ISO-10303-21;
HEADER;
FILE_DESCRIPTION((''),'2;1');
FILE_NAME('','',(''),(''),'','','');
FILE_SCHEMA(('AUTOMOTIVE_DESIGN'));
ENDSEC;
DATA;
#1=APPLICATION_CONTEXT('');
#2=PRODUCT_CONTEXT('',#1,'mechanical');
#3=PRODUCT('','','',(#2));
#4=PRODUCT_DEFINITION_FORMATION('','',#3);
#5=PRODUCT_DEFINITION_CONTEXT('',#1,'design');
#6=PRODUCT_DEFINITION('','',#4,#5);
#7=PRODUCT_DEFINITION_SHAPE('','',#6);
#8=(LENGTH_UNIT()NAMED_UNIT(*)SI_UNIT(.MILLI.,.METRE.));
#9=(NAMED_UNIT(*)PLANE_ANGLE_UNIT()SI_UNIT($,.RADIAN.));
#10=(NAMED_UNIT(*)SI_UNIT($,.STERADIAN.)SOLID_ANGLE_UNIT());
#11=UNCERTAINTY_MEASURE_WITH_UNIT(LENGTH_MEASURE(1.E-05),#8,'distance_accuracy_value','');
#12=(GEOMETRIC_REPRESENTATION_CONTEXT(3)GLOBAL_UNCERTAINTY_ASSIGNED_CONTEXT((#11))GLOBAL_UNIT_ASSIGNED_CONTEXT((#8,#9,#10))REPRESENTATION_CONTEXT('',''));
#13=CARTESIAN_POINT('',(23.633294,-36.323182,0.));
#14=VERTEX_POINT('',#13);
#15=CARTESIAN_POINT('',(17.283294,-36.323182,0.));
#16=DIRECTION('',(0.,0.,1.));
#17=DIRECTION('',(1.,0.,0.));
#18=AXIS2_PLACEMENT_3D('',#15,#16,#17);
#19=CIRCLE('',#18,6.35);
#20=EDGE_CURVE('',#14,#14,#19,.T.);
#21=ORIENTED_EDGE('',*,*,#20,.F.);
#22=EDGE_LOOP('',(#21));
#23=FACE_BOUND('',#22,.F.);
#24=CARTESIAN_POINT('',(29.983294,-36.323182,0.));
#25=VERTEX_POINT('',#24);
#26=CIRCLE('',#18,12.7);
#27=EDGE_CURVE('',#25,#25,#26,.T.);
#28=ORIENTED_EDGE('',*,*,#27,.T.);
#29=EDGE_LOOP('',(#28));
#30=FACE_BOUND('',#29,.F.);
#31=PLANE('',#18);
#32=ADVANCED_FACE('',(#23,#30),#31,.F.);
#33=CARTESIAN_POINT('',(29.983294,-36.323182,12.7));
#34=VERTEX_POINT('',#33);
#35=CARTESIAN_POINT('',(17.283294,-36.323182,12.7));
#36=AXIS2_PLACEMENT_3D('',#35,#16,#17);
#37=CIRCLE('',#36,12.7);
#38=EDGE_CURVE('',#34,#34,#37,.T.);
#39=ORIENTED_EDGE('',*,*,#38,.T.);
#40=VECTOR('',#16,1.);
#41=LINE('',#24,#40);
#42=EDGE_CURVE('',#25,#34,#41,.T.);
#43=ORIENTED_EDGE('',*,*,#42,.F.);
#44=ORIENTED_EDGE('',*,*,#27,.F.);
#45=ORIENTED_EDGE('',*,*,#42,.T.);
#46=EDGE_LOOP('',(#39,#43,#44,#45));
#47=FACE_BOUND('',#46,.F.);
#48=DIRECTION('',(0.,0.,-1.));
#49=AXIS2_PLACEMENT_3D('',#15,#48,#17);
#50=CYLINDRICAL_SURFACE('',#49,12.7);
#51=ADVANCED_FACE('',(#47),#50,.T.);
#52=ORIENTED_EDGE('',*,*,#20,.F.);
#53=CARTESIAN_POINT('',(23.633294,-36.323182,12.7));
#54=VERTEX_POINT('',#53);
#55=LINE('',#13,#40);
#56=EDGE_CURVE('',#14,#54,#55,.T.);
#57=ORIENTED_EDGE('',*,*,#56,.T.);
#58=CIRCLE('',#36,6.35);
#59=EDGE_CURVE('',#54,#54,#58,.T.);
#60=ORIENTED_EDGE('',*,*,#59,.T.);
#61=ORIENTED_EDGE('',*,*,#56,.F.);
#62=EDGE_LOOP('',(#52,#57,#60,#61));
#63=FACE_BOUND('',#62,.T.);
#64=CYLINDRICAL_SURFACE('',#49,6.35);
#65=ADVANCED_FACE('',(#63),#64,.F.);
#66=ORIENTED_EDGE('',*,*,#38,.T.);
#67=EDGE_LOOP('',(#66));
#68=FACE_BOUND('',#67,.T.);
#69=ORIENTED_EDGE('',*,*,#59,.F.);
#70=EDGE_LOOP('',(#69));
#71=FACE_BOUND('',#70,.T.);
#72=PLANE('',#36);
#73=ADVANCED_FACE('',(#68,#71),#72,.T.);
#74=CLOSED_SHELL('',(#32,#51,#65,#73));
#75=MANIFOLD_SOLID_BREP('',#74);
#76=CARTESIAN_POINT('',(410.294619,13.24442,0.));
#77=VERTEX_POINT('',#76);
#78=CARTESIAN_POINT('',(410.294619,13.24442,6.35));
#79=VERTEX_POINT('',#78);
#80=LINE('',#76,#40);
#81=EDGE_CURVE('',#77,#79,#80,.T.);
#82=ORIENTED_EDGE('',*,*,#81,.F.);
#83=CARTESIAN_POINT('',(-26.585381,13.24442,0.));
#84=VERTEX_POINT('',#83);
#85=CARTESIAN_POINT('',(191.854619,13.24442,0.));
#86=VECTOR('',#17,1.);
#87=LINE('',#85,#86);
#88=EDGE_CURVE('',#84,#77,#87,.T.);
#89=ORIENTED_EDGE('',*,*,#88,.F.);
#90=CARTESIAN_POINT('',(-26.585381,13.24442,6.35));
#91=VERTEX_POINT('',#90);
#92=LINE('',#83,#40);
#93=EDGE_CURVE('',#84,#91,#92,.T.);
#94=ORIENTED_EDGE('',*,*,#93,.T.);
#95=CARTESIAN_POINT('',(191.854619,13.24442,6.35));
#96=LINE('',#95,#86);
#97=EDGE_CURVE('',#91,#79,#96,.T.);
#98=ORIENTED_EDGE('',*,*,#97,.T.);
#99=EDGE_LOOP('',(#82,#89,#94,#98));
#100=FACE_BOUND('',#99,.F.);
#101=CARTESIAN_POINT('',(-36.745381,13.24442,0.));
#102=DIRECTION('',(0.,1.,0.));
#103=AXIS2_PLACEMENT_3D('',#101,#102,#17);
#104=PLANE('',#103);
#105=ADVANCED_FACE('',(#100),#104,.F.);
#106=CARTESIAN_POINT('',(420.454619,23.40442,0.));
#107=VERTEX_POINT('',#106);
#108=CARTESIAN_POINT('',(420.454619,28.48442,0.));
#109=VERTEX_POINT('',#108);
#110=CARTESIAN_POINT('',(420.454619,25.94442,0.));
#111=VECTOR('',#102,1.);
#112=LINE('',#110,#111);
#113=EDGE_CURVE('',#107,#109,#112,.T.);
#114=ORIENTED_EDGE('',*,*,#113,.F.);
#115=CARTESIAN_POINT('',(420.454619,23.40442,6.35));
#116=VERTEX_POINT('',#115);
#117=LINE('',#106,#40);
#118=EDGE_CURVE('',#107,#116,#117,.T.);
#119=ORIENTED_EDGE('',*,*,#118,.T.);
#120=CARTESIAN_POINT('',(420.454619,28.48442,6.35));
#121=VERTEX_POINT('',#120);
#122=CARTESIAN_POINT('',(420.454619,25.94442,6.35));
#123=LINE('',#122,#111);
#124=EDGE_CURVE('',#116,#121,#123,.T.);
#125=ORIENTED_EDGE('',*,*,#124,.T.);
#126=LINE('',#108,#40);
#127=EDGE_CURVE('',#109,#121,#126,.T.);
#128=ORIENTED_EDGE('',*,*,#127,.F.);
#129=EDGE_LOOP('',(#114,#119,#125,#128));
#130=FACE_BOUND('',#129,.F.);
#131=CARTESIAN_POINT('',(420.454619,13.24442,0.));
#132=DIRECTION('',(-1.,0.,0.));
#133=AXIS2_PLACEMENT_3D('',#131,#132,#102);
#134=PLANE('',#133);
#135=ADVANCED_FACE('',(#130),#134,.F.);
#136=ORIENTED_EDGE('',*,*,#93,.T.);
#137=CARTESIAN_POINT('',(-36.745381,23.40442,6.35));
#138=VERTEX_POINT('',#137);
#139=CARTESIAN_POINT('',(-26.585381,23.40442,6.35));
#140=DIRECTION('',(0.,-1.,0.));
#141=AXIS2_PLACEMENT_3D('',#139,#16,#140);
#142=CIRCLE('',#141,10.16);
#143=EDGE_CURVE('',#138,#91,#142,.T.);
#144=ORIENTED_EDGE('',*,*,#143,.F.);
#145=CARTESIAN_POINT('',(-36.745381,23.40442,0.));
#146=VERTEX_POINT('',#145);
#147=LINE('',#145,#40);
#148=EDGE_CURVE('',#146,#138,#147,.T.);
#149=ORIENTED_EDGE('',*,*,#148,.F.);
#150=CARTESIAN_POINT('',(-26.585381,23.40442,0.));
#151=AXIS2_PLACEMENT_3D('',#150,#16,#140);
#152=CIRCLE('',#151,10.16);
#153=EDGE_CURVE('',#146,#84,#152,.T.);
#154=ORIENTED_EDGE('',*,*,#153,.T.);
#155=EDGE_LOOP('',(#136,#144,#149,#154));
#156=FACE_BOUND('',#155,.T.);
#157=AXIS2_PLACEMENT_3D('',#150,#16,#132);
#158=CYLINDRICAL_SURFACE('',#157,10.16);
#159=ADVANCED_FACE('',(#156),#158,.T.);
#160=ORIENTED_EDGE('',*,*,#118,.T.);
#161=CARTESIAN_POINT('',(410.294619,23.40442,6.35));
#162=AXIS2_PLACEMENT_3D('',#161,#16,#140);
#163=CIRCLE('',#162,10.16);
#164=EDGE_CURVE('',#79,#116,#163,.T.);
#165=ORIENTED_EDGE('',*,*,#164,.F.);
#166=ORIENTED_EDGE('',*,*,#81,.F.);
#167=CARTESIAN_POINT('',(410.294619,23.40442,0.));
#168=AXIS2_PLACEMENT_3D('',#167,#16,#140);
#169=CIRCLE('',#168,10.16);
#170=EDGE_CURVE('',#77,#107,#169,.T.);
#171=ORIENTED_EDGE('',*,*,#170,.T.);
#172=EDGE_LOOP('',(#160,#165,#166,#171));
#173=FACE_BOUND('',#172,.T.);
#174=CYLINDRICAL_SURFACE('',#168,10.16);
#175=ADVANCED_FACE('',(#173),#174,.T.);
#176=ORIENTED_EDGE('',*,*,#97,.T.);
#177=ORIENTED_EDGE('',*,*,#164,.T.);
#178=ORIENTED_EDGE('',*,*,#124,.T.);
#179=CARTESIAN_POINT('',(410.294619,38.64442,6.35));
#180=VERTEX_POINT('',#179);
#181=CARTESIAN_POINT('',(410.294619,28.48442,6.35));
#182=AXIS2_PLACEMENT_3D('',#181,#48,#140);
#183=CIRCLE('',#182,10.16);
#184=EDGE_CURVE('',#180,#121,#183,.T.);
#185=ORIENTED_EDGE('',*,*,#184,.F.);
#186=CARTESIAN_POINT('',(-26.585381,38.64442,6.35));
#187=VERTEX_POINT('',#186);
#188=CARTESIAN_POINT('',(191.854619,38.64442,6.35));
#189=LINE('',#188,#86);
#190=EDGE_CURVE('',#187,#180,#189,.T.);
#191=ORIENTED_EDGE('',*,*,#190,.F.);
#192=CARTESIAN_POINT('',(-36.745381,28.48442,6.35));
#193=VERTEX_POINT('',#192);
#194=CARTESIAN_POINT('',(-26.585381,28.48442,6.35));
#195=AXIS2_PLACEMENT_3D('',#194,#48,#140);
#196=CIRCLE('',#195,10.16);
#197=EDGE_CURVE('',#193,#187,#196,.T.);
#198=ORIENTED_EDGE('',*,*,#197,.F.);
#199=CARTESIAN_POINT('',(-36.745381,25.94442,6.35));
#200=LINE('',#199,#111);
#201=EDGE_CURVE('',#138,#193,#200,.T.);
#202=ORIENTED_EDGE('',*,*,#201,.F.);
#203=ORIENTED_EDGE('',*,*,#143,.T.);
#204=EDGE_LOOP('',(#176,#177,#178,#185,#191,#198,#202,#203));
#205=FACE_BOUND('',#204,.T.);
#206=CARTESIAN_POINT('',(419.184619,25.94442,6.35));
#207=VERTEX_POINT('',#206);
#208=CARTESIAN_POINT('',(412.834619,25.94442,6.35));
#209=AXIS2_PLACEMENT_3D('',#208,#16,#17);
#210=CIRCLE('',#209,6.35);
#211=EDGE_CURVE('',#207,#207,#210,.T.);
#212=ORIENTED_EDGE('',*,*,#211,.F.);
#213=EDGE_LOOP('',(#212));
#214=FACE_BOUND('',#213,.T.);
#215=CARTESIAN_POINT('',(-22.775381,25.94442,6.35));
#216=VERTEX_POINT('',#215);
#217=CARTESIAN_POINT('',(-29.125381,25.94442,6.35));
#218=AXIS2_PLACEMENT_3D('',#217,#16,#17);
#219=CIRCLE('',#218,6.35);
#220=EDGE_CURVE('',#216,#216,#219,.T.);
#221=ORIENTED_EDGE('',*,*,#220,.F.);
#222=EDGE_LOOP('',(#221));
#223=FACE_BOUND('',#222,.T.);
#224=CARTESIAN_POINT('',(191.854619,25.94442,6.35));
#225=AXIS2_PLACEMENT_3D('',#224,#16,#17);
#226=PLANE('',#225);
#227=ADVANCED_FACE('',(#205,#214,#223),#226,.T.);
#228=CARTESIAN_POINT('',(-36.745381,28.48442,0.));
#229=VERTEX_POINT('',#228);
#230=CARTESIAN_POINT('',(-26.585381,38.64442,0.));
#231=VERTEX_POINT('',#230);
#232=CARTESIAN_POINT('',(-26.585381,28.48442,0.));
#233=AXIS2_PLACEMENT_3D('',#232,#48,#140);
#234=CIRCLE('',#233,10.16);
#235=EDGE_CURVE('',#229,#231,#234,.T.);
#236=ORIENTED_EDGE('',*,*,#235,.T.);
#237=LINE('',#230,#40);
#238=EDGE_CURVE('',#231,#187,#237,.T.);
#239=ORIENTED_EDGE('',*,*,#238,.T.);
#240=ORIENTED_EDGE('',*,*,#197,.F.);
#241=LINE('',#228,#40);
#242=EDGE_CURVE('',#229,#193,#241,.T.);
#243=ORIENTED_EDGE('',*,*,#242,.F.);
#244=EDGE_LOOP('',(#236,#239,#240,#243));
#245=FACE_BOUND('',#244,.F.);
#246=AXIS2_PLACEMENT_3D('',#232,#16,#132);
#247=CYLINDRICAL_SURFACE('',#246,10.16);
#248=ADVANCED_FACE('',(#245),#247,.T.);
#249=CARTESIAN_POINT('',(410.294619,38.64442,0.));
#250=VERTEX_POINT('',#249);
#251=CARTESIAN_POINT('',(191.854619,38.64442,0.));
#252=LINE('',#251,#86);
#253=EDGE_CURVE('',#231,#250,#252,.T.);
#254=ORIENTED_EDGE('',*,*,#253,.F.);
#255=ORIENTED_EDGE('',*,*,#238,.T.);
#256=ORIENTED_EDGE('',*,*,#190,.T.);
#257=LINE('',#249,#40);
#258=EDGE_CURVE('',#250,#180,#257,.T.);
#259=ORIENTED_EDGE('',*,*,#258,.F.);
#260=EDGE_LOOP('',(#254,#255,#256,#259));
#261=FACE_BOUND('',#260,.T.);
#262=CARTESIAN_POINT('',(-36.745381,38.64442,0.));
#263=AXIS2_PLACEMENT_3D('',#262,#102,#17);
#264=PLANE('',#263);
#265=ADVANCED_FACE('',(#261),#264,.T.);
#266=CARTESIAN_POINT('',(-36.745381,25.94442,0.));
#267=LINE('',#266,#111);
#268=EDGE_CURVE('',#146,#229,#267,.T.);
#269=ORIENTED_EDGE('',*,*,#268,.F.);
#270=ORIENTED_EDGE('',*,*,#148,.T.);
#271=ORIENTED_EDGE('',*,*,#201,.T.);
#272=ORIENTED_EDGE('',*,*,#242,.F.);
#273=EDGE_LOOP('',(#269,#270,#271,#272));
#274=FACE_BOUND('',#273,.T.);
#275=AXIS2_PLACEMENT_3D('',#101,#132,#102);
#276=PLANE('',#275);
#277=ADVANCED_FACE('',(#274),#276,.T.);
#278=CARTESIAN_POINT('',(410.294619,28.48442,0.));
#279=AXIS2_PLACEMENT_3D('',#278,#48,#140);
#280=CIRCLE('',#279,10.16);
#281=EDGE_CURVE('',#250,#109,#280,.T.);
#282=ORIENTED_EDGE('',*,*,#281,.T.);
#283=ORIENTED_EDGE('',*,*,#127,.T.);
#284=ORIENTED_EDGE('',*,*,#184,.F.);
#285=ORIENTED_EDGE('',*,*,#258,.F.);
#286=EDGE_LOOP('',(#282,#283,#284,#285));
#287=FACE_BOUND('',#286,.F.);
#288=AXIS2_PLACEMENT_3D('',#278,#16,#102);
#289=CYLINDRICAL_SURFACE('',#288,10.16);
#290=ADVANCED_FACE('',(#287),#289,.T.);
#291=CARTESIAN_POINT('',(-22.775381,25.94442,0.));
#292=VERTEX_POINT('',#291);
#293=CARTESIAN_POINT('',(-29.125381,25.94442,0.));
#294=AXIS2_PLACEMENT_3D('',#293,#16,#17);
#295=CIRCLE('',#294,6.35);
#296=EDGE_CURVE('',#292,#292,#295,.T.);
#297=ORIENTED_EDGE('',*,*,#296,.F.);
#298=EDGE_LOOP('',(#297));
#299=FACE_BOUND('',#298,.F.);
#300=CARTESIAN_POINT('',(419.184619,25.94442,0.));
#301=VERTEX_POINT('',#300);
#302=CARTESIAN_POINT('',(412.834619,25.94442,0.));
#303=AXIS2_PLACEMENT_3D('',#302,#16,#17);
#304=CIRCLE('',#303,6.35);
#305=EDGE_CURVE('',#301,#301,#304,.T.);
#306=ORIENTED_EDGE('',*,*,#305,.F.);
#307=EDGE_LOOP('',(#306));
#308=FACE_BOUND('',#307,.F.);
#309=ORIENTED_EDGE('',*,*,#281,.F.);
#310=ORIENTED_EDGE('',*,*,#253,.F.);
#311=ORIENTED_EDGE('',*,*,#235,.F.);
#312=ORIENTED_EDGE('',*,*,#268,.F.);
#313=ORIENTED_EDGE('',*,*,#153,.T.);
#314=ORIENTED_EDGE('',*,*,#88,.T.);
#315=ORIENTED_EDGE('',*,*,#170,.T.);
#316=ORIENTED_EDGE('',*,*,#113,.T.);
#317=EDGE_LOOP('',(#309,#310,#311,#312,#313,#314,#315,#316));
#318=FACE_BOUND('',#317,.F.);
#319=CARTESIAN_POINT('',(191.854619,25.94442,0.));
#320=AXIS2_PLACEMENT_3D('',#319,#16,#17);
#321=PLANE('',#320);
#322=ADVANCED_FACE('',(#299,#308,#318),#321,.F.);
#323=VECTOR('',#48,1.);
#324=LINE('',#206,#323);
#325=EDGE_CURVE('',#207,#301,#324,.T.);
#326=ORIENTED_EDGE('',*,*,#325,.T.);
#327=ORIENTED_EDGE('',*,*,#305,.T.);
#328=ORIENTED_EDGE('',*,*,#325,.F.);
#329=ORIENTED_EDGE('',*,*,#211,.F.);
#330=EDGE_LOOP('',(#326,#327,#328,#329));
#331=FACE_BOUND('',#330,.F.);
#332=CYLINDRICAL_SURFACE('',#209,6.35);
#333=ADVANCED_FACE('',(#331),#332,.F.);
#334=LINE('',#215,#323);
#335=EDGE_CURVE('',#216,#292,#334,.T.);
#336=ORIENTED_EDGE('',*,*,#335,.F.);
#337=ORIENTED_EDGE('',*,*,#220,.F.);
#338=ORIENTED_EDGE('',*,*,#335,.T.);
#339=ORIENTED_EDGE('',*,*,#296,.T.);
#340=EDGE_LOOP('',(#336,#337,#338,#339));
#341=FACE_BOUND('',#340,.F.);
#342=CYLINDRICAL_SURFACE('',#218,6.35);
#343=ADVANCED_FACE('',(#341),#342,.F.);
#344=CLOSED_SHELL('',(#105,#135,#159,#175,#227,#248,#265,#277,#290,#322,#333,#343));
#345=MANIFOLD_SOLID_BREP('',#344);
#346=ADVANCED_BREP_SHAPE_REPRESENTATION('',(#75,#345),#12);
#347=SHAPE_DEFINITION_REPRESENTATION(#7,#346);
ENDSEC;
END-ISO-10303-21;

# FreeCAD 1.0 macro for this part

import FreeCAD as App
import Part
import Sketcher

V = App.Vector
Q = App.Units.Quantity


def edges_at(feature, points):
    """Names of the edges that pass closest to the given points."""
    edges = feature.Shape.Edges
    near = lambda p: min(range(len(edges)), key=lambda i: edges[i].distToShape(Part.Vertex(*p))[0])
    return sorted({f"Edge{near(p) + 1}" for p in points})


def add_polygon(sketch, points):
    """Adds a closed chain of lines whose ends are joined by coincident constraints."""
    first, n = sketch.GeometryCount, len(points)
    for a, b in zip(points, points[1:] + points[:1]):
        sketch.addGeometry(Part.LineSegment(App.Vector(*a, 0), App.Vector(*b, 0)), False)
    for i in range(n):
        sketch.addConstraint(Sketcher.Constraint("Coincident", first + i, 2, first + (i + 1) % n, 1))

doc = App.newDocument("Part")
body = doc.addObject("PartDesign::Body", "Body")

sketch1 = body.newObject("Sketcher::SketchObject", "Sketch")
sketch1.AttachmentSupport = (doc.getObject("XY_Plane"), [""])
sketch1.MapMode = "FlatFace"
add_polygon(sketch1, [(-37, 39), (-37, 13), (420, 13), (420, 39)])
sketch1.addConstraint([
    Sketcher.Constraint("Vertical", 0),
    Sketcher.Constraint("Horizontal", 1),
    Sketcher.Constraint("Vertical", 2),
    Sketcher.Constraint("Horizontal", 3),
    Sketcher.Constraint("DistanceX", 1, 1, 1, 2, Q("18 in")),
    Sketcher.Constraint("DistanceY", 0, 2, 0, 1, Q("1 in")),
    Sketcher.Constraint("DistanceX", 0, 2, -1, 1, Q("36.745381 mm")),
    Sketcher.Constraint("DistanceY", -1, 1, 0, 2, Q("13.24442 mm")),
])
pad1 = body.newObject("PartDesign::Pad", "Pad")
pad1.Profile = sketch1
pad1.Length = Q("0.25 in")

sketch2 = body.newObject("Sketcher::SketchObject", "Sketch001")
sketch2.AttachmentSupport = (doc.getObject("XY_Plane"), [""])
sketch2.MapMode = "FlatFace"
sketch2.AttachmentOffset = App.Placement(V(0, 0, 0.25 * 25.4), App.Rotation())
sketch2.addGeometry([
    Part.Circle(V(-29, 26, 0), V(0, 0, 1), 6),
    Part.Circle(V(413, 26, 0), V(0, 0, 1), 6),
], False)
sketch2.addConstraint([
    Sketcher.Constraint("Equal", 0, 1),
    Sketcher.Constraint("Horizontal", 0, 3, 1, 3),
    Sketcher.Constraint("Diameter", 0, Q("0.5 in")),
    Sketcher.Constraint("DistanceX", 0, 3, 1, 3, Q("17.4 in")),
    Sketcher.Constraint("DistanceX", 0, 3, -1, 1, Q("29.125381 mm")),
    Sketcher.Constraint("DistanceY", -1, 1, 0, 3, Q("25.94442 mm")),
])
pocket1 = body.newObject("PartDesign::Pocket", "Pocket")
pocket1.Profile = sketch2
pocket1.Length = Q("1 in")
doc.recompute()

fillet = body.newObject("PartDesign::Fillet", "Fillet")
fillet.Base = (pocket1, edges_at(pocket1, [
    (-36.745, 13.244, 3.175),
    (-36.745, 38.644, 3.175),
    (420.455, 38.644, 3.175),
    (420.455, 13.244, 3.175),
]))
fillet.Radius = Q("0.4 in")
body2 = doc.addObject("PartDesign::Body", "Body001")

sketch3 = body2.newObject("Sketcher::SketchObject", "Sketch002")
sketch3.AttachmentSupport = (doc.getObject("XY_Plane001"), [""])
sketch3.MapMode = "FlatFace"
sketch3.addGeometry([
    Part.Circle(V(17, -36, 0), V(0, 0, 1), 13),
    Part.Circle(V(17, -36, 0), V(0, 0, 1), 6),
], False)
sketch3.addConstraint([
    Sketcher.Constraint("Coincident", 1, 3, 0, 3),
    Sketcher.Constraint("Diameter", 0, Q("1 in")),
    Sketcher.Constraint("Diameter", 1, Q("0.5 in")),
    Sketcher.Constraint("DistanceX", -1, 1, 0, 3, Q("17.283294 mm")),
    Sketcher.Constraint("DistanceY", 0, 3, -1, 1, Q("36.323182 mm")),
])
pad2 = body2.newObject("PartDesign::Pad", "Pad001")
pad2.Profile = sketch3
pad2.Length = Q("0.5 in")

doc.recompute()
